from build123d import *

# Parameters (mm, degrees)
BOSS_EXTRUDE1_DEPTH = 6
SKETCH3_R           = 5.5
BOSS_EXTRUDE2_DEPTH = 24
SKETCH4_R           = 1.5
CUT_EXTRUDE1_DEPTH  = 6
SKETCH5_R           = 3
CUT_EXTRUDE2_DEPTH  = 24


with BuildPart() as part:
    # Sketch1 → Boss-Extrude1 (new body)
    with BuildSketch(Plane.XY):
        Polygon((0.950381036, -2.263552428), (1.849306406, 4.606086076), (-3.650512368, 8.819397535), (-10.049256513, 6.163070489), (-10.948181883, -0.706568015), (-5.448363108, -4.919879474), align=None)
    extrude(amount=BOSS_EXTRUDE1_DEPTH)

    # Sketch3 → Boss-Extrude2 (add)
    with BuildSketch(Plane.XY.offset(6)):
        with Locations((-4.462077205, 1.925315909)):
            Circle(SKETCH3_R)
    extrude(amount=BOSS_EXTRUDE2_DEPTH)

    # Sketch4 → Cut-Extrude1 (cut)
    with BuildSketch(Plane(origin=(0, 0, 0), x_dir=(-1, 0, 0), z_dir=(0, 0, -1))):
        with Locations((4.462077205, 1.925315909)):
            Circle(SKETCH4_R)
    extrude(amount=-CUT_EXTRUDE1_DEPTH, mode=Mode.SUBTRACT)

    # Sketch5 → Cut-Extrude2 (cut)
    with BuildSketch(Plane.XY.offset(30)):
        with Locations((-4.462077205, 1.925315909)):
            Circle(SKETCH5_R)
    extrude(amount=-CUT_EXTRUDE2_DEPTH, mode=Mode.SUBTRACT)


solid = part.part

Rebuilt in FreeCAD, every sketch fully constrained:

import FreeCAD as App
import Part
import Sketcher
from FreeCAD import Vector


def add_polygon(sketch, points):
    """Adds a closed chain of lines whose ends are joined by coincident constraints."""
    first, n = sketch.GeometryCount, len(points)
    for a, b in zip(points, points[1:] + points[:1]):
        sketch.addGeometry(Part.LineSegment(App.Vector(*a, 0), App.Vector(*b, 0)), False)
    for i in range(n):
        sketch.addConstraint(Sketcher.Constraint("Coincident", first + i, 2, first + (i + 1) % n, 1))

doc = App.newDocument("Part")
body = doc.addObject("PartDesign::Body", "Body")

# Sketch on XY plane
sketch1 = body.newObject("Sketcher::SketchObject", "Sketch")
sketch1.AttachmentSupport = (doc.getObject("XY_Plane"), [""])
sketch1.MapMode = "FlatFace"
add_polygon(sketch1, [(1, -2), (2, 5), (-4, 9), (-10, 6), (-11, -1), (-5, -5)])  # lines 0-5
sketch1.addConstraint([
    Sketcher.Constraint("Parallel", 0, 3),
    Sketcher.Constraint("Parallel", 1, 4),
    Sketcher.Constraint("Parallel", 2, 5),
    Sketcher.Constraint("Equal", 0, 1),
    Sketcher.Constraint("Equal", 1, 2),
    Sketcher.Constraint("Equal", 2, 3),
    Sketcher.Constraint("DistanceY", -1, 1, 2, 2, 6.16307),
    Sketcher.Constraint("DistanceX", 3, 2, -1, 1, 10.948182),
    Sketcher.Constraint("DistanceY", 3, 2, -1, 1, 0.706568),
    Sketcher.Constraint("DistanceY", 4, 2, -1, 1, 4.919879),
    Sketcher.Constraint("DistanceX", -1, 1, 5, 2, 0.950381),
    Sketcher.Constraint("DistanceX", 1, 2, 0, 2, 5.499819),
])
pad1 = body.newObject("PartDesign::Pad", "Pad")
pad1.Profile = sketch1
pad1.Length = 6

# Sketch on XY plane
sketch2 = body.newObject("Sketcher::SketchObject", "Sketch001")
sketch2.AttachmentSupport = (doc.getObject("XY_Plane"), [""])
sketch2.MapMode = "FlatFace"
sketch2.AttachmentOffset = App.Placement(Vector(0, 0, 6), App.Rotation())
sketch2.addGeometry(Part.Circle(Vector(-4, 2, 0), Vector(0, 0, 1), 6), False)
sketch2.addConstraint([
    Sketcher.Constraint("Diameter", 0, 11.0),
    Sketcher.Constraint("DistanceX", 0, 3, -1, 1, 4.462077),
    Sketcher.Constraint("DistanceY", -1, 1, 0, 3, 1.925316),
])
pad2 = body.newObject("PartDesign::Pad", "Pad001")
pad2.Profile = sketch2
pad2.Length = 24

# Sketch on XY plane
sketch3 = body.newObject("Sketcher::SketchObject", "Sketch002")
sketch3.AttachmentSupport = (doc.getObject("XY_Plane"), [""])
sketch3.MapMode = "FlatFace"
sketch3.addGeometry(Part.Circle(Vector(-4.5, 1.9, 0), Vector(0, 0, 1), 1.5), False)
sketch3.addConstraint([
    Sketcher.Constraint("Diameter", 0, 3.0),
    Sketcher.Constraint("DistanceX", 0, 3, -1, 1, 4.462077),
    Sketcher.Constraint("DistanceY", -1, 1, 0, 3, 1.925316),
])
pocket1 = body.newObject("PartDesign::Pocket", "Pocket")
pocket1.Profile = sketch3
pocket1.Length = 6
pocket1.Reversed = True

# Sketch on XY plane
sketch4 = body.newObject("Sketcher::SketchObject", "Sketch003")
sketch4.AttachmentSupport = (doc.getObject("XY_Plane"), [""])
sketch4.MapMode = "FlatFace"
sketch4.AttachmentOffset = App.Placement(Vector(0, 0, 30), App.Rotation())
sketch4.addGeometry(Part.Circle(Vector(-4.5, 1.9, 0), Vector(0, 0, 1), 3), False)
sketch4.addConstraint([
    Sketcher.Constraint("Diameter", 0, 6.0),
    Sketcher.Constraint("DistanceX", 0, 3, -1, 1, 4.462077),
    Sketcher.Constraint("DistanceY", -1, 1, 0, 3, 1.925316),
])
pocket2 = body.newObject("PartDesign::Pocket", "Pocket001")
pocket2.Profile = sketch4
pocket2.Length = 24

doc.recompute()
